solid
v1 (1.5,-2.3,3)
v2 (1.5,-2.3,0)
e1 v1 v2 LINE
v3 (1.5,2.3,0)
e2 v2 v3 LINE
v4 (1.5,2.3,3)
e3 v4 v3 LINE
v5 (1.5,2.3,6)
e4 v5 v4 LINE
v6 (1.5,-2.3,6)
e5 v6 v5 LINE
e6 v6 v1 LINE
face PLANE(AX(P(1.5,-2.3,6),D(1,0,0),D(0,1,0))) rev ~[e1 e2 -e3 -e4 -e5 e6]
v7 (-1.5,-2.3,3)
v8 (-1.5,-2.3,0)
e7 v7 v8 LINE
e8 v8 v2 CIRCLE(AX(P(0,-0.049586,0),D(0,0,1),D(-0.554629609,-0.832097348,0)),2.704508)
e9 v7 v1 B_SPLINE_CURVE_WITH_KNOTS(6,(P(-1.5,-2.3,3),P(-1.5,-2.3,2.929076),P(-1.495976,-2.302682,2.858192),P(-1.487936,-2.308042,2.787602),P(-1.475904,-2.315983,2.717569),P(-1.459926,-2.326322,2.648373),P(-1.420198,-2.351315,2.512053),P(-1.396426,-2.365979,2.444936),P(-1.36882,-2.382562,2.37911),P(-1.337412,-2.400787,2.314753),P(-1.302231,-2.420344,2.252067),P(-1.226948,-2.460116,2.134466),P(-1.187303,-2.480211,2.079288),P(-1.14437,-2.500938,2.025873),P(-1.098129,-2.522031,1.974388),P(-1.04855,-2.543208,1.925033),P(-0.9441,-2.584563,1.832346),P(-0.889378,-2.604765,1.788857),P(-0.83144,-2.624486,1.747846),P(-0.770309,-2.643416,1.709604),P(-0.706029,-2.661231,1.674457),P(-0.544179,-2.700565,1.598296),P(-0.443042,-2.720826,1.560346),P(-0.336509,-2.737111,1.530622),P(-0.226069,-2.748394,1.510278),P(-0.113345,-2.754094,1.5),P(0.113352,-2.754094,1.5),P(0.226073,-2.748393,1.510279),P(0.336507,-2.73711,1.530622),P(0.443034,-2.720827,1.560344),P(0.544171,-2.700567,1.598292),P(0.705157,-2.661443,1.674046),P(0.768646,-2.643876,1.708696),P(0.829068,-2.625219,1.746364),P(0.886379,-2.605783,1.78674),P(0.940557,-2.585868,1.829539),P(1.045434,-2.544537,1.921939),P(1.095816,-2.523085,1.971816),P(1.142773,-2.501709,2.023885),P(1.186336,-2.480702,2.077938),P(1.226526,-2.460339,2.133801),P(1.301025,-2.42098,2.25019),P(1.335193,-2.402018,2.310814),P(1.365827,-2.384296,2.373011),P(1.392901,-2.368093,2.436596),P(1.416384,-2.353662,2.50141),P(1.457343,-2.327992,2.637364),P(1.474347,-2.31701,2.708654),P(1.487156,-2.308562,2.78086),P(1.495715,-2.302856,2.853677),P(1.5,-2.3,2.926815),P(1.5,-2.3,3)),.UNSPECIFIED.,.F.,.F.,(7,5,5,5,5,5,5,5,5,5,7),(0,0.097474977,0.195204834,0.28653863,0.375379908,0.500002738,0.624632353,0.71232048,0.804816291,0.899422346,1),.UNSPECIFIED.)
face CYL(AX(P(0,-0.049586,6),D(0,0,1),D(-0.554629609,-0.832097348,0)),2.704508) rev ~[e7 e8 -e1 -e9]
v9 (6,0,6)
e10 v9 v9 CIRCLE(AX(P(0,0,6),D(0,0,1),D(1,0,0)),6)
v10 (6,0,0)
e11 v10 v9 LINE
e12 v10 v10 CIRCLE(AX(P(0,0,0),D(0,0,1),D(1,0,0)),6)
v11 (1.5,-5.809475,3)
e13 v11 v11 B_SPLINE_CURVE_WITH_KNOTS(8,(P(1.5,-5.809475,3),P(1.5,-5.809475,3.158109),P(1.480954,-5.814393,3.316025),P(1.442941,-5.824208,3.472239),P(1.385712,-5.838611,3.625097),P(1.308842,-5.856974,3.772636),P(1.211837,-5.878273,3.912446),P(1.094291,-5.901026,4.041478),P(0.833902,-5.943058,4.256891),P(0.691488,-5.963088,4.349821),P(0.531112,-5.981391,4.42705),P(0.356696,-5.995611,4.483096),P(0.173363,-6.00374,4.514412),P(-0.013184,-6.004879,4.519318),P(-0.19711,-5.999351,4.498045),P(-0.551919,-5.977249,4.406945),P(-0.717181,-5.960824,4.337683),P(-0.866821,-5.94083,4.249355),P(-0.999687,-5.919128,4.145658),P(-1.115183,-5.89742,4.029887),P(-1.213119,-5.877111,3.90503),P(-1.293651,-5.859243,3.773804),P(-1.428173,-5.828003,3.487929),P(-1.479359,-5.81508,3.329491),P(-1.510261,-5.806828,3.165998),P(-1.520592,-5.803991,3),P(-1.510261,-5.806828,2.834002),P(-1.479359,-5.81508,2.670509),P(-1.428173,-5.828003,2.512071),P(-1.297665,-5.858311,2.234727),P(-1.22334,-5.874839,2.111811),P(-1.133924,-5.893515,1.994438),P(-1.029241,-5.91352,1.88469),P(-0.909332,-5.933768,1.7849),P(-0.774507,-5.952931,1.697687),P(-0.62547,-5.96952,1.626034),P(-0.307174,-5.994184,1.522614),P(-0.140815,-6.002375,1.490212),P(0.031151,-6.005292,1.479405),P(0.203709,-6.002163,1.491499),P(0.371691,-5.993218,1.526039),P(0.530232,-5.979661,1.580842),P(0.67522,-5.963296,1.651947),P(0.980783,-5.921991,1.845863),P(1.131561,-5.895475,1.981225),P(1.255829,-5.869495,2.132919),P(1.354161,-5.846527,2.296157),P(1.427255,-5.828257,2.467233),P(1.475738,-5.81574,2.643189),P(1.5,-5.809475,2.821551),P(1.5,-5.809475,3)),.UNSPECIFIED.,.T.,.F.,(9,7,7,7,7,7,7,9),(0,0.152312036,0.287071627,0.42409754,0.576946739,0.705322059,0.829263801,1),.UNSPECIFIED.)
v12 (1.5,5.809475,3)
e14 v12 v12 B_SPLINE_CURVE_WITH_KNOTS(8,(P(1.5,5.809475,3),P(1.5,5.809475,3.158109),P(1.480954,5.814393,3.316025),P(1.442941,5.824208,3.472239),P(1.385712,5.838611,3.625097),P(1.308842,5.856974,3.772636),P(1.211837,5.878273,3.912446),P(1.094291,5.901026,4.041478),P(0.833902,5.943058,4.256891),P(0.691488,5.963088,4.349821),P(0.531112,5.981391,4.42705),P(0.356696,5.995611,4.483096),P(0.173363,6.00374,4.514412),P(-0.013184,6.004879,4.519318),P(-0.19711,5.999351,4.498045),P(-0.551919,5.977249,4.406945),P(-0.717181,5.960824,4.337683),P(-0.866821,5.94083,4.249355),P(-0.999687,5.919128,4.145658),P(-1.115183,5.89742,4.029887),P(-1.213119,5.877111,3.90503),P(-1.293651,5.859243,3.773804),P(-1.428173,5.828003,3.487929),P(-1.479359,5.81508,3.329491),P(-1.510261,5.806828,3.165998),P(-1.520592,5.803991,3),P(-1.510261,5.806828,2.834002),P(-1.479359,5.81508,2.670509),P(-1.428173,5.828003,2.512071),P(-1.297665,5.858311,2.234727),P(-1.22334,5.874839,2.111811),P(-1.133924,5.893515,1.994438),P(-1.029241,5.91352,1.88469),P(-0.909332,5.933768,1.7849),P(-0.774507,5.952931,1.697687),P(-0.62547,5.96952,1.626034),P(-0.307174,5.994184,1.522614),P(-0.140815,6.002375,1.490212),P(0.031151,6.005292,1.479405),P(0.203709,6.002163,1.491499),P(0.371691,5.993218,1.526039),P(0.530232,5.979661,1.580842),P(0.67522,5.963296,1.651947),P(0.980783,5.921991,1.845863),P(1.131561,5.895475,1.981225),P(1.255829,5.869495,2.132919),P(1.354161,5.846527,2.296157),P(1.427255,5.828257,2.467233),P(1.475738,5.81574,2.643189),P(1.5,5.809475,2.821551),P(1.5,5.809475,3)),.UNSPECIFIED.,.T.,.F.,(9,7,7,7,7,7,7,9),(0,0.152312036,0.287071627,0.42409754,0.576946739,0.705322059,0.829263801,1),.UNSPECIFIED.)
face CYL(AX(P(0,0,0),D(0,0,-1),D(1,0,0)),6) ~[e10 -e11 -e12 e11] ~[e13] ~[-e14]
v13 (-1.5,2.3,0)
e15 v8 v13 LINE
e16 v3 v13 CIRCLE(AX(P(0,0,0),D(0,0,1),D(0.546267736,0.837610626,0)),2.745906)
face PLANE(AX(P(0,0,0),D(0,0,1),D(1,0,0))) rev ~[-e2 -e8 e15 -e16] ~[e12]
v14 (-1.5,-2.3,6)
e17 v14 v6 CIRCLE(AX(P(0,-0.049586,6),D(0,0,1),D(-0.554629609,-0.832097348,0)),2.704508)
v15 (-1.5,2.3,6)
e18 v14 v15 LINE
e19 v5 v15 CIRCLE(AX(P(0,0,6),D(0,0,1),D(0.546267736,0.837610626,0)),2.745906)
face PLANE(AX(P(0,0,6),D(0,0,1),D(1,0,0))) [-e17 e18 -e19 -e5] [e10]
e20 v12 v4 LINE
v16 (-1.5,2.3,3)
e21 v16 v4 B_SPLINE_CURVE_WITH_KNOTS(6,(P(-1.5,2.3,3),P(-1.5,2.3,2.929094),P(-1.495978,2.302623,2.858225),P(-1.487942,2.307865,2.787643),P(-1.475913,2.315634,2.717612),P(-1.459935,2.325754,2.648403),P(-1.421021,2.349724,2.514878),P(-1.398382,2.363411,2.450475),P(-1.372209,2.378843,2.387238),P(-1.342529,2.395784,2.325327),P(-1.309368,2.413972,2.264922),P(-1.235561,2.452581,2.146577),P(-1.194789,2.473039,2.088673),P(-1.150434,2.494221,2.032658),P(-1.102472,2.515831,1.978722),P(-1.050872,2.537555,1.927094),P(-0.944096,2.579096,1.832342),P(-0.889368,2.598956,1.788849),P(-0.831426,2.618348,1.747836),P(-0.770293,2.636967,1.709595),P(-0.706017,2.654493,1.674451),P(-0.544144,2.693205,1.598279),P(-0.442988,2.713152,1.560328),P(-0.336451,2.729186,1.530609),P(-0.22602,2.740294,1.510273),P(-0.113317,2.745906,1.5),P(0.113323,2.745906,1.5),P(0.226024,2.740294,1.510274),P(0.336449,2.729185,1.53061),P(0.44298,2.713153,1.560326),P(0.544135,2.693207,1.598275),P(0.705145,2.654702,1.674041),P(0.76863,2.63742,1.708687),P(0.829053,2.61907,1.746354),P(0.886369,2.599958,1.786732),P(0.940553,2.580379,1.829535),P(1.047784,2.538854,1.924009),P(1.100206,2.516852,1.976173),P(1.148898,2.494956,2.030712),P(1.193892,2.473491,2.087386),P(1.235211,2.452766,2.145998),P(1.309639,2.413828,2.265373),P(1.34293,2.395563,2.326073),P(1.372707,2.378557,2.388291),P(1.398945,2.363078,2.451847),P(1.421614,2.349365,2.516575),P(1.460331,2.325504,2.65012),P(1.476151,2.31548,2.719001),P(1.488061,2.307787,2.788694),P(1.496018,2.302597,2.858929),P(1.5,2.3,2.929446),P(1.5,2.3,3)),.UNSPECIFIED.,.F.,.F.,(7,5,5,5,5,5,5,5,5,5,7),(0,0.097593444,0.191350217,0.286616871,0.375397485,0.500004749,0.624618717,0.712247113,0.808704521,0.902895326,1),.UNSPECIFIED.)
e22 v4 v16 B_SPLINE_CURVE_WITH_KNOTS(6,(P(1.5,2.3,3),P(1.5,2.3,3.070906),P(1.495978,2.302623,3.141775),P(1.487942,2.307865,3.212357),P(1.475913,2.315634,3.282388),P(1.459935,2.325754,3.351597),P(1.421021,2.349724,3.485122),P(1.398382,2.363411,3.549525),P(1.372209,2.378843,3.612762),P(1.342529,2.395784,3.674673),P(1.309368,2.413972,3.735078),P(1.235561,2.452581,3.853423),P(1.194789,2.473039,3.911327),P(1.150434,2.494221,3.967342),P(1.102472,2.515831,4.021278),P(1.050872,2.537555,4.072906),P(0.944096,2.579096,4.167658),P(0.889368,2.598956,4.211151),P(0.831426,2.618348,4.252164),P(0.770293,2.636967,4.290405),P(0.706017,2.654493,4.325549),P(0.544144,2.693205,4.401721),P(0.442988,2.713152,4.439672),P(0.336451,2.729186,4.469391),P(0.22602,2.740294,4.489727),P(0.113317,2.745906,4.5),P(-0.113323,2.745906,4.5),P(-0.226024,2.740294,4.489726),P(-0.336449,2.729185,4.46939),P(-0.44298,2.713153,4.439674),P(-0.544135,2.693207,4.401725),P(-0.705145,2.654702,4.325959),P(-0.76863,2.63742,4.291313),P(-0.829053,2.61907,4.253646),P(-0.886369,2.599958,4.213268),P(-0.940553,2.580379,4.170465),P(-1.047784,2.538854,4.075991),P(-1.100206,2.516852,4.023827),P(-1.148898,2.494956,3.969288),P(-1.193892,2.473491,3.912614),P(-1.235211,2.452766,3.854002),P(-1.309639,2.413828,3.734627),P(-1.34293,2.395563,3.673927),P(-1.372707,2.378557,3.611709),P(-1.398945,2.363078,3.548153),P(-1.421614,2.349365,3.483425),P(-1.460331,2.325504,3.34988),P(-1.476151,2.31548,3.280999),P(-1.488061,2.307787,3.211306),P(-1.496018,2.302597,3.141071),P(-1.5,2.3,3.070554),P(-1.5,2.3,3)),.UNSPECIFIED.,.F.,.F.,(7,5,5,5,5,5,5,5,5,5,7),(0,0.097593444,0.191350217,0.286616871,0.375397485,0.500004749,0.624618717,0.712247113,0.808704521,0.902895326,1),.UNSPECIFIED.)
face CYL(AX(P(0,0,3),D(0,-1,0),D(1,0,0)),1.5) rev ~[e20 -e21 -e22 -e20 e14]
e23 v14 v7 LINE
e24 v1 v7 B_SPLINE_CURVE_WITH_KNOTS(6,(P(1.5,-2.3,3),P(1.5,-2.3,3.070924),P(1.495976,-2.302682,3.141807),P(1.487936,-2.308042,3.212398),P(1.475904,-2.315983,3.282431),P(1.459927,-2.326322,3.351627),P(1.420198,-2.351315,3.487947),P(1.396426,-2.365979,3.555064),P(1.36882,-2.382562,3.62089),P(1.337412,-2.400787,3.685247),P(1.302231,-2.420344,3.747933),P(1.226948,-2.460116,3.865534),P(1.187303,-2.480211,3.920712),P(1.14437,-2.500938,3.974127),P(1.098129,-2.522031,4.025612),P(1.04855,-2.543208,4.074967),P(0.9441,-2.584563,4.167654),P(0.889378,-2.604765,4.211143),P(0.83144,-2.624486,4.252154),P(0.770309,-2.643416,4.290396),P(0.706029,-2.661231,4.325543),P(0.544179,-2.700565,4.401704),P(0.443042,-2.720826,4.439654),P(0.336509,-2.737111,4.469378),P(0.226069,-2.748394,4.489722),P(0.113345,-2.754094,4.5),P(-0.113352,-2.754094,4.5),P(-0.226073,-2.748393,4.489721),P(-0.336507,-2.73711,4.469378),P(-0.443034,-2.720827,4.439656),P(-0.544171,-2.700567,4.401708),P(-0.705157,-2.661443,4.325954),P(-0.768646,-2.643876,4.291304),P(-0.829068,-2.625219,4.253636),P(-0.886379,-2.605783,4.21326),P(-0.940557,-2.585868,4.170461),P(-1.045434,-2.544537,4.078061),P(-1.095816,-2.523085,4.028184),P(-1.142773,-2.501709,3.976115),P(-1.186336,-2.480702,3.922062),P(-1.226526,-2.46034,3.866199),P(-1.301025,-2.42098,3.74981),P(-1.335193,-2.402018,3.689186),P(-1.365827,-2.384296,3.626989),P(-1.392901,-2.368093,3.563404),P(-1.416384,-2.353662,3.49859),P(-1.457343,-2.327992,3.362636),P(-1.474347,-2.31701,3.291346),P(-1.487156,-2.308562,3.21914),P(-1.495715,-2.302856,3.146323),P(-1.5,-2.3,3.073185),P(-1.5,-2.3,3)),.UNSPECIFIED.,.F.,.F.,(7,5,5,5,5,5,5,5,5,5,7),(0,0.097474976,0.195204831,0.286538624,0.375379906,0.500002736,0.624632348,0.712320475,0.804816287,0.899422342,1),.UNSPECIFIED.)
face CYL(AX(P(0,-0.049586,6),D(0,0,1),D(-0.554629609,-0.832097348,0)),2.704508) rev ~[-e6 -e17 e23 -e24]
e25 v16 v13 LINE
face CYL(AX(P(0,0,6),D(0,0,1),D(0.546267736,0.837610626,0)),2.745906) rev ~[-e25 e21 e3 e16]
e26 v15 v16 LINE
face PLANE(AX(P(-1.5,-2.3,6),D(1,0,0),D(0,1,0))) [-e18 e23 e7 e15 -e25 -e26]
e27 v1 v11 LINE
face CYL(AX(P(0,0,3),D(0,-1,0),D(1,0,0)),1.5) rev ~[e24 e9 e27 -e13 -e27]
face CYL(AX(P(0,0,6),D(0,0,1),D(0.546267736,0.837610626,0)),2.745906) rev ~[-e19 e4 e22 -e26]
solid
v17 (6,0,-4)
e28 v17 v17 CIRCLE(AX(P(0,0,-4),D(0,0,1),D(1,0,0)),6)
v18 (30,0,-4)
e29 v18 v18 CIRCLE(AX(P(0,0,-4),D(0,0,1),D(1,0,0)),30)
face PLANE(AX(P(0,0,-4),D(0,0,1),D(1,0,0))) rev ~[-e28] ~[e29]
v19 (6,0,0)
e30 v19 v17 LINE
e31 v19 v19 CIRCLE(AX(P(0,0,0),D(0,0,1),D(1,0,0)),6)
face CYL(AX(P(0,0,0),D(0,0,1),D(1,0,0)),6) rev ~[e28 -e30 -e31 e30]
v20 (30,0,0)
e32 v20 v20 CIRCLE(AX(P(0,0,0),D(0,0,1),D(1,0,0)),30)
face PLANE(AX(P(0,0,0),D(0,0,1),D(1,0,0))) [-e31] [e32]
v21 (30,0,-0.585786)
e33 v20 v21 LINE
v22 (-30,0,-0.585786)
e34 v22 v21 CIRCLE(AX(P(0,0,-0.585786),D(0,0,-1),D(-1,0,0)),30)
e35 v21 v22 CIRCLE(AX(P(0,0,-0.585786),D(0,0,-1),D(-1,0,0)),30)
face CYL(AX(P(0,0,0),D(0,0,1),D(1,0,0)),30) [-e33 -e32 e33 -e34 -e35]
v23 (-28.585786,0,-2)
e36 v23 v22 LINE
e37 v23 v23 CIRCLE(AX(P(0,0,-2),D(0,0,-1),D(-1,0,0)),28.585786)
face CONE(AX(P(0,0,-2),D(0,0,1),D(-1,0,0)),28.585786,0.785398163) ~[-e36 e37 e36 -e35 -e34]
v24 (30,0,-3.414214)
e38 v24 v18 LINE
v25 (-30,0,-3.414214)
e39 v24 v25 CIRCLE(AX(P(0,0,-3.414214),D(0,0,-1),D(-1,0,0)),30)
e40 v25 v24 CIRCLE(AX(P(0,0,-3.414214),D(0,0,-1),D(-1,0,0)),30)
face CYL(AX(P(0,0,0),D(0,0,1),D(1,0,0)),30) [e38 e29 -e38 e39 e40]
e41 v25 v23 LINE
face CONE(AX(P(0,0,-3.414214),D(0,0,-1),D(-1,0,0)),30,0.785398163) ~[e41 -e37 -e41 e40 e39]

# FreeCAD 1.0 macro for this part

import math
import FreeCAD as App
import Part
import Sketcher
Q = App.Units.Quantity


def add_polygon(sketch, points):
    """Adds a closed chain of lines whose ends are joined by coincident constraints."""
    first, n = sketch.GeometryCount, len(points)
    for a, b in zip(points, points[1:] + points[:1]):
        sketch.addGeometry(Part.LineSegment(App.Vector(*a, 0), App.Vector(*b, 0)), False)
    for i in range(n):
        sketch.addConstraint(Sketcher.Constraint("Coincident", first + i, 2, first + (i + 1) % n, 1))

doc = App.newDocument("Part")
body = doc.addObject("PartDesign::Body", "Body")

sketch1 = body.newObject("Sketcher::SketchObject", "Sketch")
sketch1.AttachmentSupport = (doc.getObject("XY_Plane"), [""])
sketch1.MapMode = "FlatFace"
sketch1.addGeometry(Part.Circle(App.Vector(0, 0, 0), App.Vector(0, 0, 1), 30), False)
sketch1.addGeometry(Part.Circle(App.Vector(0, 0, 0), App.Vector(0, 0, 1), 6), False)
sketch1.addConstraint(Sketcher.Constraint("Coincident", 0, 3, -1, 1))
sketch1.addConstraint(Sketcher.Constraint("Coincident", 1, 3, -1, 1))
sketch1.addConstraint(Sketcher.Constraint("Diameter", 0, Q("60 mm")))
sketch1.addConstraint(Sketcher.Constraint("Diameter", 1, Q("12 mm")))
pad1 = body.newObject("PartDesign::Pad", "Pad")
pad1.Profile = sketch1
pad1.Length = 4
pad1.Reversed = True

sketch2 = body.newObject("Sketcher::SketchObject", "Sketch001")
sketch2.AttachmentSupport = (doc.getObject("XZ_Plane"), [""])
sketch2.MapMode = "FlatFace"
add_polygon(sketch2, [(-30, -0.6), (-30, -3.4), (-28.6, -2)])
sketch2.addConstraint(Sketcher.Constraint("Vertical", 0))
sketch2.addConstraint(Sketcher.Constraint("Perpendicular", 1, 2))
sketch2.addConstraint(Sketcher.Constraint("Equal", 1, 2))
sketch2.addConstraint(Sketcher.Constraint("Distance", 1, Q("2.000001 mm")))
sketch2.addConstraint(Sketcher.Constraint("DistanceX", 0, 2, -1, 1, Q("30 mm")))
sketch2.addConstraint(Sketcher.Constraint("DistanceY", 1, 2, -1, 1, Q("2 mm")))
groove = body.newObject("PartDesign::Groove", "Groove")
groove.Profile = sketch2
groove.ReferenceAxis = (sketch2, ["V_Axis"])
groove.Angle = 360
body2 = doc.addObject("PartDesign::Body", "Body001")

sketch3 = body2.newObject("Sketcher::SketchObject", "Sketch002")
sketch3.AttachmentSupport = (doc.getObject("XY_Plane001"), [""])
sketch3.MapMode = "FlatFace"
sketch3.addGeometry(Part.Circle(App.Vector(0, 0, 0), App.Vector(0, 0, 1), 6), False)
sketch3.addConstraint(Sketcher.Constraint("Coincident", 0, 3, -1, 1))
sketch3.addConstraint(Sketcher.Constraint("Diameter", 0, Q("12 mm")))
pad2 = body2.newObject("PartDesign::Pad", "Pad001")
pad2.Profile = sketch3
pad2.Length = 6

sketch4 = body2.newObject("Sketcher::SketchObject", "Sketch003")
sketch4.AttachmentSupport = (doc.getObject("XZ_Plane001"), [""])
sketch4.MapMode = "FlatFace"
sketch4.addGeometry(Part.Circle(App.Vector(0, 3, 0), App.Vector(0, 0, 1), 1.5), False)
sketch4.addConstraint(Sketcher.Constraint("PointOnObject", 0, 3, -2))
sketch4.addConstraint(Sketcher.Constraint("Diameter", 0, Q("3 mm")))
sketch4.addConstraint(Sketcher.Constraint("DistanceY", -1, 1, 0, 3, Q("3 mm")))
pocket1 = body2.newObject("PartDesign::Pocket", "Pocket")
pocket1.Profile = sketch4
pocket1.Length = 25
pocket1.Midplane = True

sketch5 = body2.newObject("Sketcher::SketchObject", "Sketch004")
sketch5.AttachmentSupport = (doc.getObject("XY_Plane001"), [""])
sketch5.MapMode = "FlatFace"
sketch5.AttachmentOffset = App.Placement(App.Vector(0, 0, 6), App.Rotation())
sketch5.addGeometry(Part.LineSegment(App.Vector(-1.5, 2.3, 0), App.Vector(-1.5, -2.3, 0)), False)
sketch5.addGeometry(Part.ArcOfCircle(Part.Circle(App.Vector(0, 0, 0), App.Vector(0, 0, 1), 2.7), math.radians(-124), math.radians(-56)), False)
sketch5.addGeometry(Part.LineSegment(App.Vector(1.5, -2.3, 0), App.Vector(1.5, 2.3, 0)), False)
sketch5.addGeometry(Part.ArcOfCircle(Part.Circle(App.Vector(0, 0, 0), App.Vector(0, 0, 1), 2.7), math.radians(57), math.radians(123)), False)
sketch5.addConstraint(Sketcher.Constraint("Coincident", 0, 2, 1, 1))
sketch5.addConstraint(Sketcher.Constraint("Coincident", 1, 2, 2, 1))
sketch5.addConstraint(Sketcher.Constraint("Coincident", 2, 2, 3, 1))
sketch5.addConstraint(Sketcher.Constraint("Coincident", 3, 2, 0, 1))
sketch5.addConstraint(Sketcher.Constraint("Vertical", 0))
sketch5.addConstraint(Sketcher.Constraint("Vertical", 2))
sketch5.addConstraint(Sketcher.Constraint("Coincident", 3, 3, -1, 1))
sketch5.addConstraint(Sketcher.Constraint("Symmetric", 0, 2, 2, 2, -1, 1))
sketch5.addConstraint(Sketcher.Constraint("PointOnObject", 1, 3, -2))
sketch5.addConstraint(Sketcher.Constraint("DistanceY", 0, 2, 0, 1, Q("4.6 mm")))
sketch5.addConstraint(Sketcher.Constraint("DistanceX", 0, 2, 1, 2, Q("3 mm")))
sketch5.addConstraint(Sketcher.Constraint("Radius", 1, Q("2.704508 mm")))
pocket2 = body2.newObject("PartDesign::Pocket", "Pocket001")
pocket2.Profile = sketch5
pocket2.Length = 9.4

doc.recompute()
